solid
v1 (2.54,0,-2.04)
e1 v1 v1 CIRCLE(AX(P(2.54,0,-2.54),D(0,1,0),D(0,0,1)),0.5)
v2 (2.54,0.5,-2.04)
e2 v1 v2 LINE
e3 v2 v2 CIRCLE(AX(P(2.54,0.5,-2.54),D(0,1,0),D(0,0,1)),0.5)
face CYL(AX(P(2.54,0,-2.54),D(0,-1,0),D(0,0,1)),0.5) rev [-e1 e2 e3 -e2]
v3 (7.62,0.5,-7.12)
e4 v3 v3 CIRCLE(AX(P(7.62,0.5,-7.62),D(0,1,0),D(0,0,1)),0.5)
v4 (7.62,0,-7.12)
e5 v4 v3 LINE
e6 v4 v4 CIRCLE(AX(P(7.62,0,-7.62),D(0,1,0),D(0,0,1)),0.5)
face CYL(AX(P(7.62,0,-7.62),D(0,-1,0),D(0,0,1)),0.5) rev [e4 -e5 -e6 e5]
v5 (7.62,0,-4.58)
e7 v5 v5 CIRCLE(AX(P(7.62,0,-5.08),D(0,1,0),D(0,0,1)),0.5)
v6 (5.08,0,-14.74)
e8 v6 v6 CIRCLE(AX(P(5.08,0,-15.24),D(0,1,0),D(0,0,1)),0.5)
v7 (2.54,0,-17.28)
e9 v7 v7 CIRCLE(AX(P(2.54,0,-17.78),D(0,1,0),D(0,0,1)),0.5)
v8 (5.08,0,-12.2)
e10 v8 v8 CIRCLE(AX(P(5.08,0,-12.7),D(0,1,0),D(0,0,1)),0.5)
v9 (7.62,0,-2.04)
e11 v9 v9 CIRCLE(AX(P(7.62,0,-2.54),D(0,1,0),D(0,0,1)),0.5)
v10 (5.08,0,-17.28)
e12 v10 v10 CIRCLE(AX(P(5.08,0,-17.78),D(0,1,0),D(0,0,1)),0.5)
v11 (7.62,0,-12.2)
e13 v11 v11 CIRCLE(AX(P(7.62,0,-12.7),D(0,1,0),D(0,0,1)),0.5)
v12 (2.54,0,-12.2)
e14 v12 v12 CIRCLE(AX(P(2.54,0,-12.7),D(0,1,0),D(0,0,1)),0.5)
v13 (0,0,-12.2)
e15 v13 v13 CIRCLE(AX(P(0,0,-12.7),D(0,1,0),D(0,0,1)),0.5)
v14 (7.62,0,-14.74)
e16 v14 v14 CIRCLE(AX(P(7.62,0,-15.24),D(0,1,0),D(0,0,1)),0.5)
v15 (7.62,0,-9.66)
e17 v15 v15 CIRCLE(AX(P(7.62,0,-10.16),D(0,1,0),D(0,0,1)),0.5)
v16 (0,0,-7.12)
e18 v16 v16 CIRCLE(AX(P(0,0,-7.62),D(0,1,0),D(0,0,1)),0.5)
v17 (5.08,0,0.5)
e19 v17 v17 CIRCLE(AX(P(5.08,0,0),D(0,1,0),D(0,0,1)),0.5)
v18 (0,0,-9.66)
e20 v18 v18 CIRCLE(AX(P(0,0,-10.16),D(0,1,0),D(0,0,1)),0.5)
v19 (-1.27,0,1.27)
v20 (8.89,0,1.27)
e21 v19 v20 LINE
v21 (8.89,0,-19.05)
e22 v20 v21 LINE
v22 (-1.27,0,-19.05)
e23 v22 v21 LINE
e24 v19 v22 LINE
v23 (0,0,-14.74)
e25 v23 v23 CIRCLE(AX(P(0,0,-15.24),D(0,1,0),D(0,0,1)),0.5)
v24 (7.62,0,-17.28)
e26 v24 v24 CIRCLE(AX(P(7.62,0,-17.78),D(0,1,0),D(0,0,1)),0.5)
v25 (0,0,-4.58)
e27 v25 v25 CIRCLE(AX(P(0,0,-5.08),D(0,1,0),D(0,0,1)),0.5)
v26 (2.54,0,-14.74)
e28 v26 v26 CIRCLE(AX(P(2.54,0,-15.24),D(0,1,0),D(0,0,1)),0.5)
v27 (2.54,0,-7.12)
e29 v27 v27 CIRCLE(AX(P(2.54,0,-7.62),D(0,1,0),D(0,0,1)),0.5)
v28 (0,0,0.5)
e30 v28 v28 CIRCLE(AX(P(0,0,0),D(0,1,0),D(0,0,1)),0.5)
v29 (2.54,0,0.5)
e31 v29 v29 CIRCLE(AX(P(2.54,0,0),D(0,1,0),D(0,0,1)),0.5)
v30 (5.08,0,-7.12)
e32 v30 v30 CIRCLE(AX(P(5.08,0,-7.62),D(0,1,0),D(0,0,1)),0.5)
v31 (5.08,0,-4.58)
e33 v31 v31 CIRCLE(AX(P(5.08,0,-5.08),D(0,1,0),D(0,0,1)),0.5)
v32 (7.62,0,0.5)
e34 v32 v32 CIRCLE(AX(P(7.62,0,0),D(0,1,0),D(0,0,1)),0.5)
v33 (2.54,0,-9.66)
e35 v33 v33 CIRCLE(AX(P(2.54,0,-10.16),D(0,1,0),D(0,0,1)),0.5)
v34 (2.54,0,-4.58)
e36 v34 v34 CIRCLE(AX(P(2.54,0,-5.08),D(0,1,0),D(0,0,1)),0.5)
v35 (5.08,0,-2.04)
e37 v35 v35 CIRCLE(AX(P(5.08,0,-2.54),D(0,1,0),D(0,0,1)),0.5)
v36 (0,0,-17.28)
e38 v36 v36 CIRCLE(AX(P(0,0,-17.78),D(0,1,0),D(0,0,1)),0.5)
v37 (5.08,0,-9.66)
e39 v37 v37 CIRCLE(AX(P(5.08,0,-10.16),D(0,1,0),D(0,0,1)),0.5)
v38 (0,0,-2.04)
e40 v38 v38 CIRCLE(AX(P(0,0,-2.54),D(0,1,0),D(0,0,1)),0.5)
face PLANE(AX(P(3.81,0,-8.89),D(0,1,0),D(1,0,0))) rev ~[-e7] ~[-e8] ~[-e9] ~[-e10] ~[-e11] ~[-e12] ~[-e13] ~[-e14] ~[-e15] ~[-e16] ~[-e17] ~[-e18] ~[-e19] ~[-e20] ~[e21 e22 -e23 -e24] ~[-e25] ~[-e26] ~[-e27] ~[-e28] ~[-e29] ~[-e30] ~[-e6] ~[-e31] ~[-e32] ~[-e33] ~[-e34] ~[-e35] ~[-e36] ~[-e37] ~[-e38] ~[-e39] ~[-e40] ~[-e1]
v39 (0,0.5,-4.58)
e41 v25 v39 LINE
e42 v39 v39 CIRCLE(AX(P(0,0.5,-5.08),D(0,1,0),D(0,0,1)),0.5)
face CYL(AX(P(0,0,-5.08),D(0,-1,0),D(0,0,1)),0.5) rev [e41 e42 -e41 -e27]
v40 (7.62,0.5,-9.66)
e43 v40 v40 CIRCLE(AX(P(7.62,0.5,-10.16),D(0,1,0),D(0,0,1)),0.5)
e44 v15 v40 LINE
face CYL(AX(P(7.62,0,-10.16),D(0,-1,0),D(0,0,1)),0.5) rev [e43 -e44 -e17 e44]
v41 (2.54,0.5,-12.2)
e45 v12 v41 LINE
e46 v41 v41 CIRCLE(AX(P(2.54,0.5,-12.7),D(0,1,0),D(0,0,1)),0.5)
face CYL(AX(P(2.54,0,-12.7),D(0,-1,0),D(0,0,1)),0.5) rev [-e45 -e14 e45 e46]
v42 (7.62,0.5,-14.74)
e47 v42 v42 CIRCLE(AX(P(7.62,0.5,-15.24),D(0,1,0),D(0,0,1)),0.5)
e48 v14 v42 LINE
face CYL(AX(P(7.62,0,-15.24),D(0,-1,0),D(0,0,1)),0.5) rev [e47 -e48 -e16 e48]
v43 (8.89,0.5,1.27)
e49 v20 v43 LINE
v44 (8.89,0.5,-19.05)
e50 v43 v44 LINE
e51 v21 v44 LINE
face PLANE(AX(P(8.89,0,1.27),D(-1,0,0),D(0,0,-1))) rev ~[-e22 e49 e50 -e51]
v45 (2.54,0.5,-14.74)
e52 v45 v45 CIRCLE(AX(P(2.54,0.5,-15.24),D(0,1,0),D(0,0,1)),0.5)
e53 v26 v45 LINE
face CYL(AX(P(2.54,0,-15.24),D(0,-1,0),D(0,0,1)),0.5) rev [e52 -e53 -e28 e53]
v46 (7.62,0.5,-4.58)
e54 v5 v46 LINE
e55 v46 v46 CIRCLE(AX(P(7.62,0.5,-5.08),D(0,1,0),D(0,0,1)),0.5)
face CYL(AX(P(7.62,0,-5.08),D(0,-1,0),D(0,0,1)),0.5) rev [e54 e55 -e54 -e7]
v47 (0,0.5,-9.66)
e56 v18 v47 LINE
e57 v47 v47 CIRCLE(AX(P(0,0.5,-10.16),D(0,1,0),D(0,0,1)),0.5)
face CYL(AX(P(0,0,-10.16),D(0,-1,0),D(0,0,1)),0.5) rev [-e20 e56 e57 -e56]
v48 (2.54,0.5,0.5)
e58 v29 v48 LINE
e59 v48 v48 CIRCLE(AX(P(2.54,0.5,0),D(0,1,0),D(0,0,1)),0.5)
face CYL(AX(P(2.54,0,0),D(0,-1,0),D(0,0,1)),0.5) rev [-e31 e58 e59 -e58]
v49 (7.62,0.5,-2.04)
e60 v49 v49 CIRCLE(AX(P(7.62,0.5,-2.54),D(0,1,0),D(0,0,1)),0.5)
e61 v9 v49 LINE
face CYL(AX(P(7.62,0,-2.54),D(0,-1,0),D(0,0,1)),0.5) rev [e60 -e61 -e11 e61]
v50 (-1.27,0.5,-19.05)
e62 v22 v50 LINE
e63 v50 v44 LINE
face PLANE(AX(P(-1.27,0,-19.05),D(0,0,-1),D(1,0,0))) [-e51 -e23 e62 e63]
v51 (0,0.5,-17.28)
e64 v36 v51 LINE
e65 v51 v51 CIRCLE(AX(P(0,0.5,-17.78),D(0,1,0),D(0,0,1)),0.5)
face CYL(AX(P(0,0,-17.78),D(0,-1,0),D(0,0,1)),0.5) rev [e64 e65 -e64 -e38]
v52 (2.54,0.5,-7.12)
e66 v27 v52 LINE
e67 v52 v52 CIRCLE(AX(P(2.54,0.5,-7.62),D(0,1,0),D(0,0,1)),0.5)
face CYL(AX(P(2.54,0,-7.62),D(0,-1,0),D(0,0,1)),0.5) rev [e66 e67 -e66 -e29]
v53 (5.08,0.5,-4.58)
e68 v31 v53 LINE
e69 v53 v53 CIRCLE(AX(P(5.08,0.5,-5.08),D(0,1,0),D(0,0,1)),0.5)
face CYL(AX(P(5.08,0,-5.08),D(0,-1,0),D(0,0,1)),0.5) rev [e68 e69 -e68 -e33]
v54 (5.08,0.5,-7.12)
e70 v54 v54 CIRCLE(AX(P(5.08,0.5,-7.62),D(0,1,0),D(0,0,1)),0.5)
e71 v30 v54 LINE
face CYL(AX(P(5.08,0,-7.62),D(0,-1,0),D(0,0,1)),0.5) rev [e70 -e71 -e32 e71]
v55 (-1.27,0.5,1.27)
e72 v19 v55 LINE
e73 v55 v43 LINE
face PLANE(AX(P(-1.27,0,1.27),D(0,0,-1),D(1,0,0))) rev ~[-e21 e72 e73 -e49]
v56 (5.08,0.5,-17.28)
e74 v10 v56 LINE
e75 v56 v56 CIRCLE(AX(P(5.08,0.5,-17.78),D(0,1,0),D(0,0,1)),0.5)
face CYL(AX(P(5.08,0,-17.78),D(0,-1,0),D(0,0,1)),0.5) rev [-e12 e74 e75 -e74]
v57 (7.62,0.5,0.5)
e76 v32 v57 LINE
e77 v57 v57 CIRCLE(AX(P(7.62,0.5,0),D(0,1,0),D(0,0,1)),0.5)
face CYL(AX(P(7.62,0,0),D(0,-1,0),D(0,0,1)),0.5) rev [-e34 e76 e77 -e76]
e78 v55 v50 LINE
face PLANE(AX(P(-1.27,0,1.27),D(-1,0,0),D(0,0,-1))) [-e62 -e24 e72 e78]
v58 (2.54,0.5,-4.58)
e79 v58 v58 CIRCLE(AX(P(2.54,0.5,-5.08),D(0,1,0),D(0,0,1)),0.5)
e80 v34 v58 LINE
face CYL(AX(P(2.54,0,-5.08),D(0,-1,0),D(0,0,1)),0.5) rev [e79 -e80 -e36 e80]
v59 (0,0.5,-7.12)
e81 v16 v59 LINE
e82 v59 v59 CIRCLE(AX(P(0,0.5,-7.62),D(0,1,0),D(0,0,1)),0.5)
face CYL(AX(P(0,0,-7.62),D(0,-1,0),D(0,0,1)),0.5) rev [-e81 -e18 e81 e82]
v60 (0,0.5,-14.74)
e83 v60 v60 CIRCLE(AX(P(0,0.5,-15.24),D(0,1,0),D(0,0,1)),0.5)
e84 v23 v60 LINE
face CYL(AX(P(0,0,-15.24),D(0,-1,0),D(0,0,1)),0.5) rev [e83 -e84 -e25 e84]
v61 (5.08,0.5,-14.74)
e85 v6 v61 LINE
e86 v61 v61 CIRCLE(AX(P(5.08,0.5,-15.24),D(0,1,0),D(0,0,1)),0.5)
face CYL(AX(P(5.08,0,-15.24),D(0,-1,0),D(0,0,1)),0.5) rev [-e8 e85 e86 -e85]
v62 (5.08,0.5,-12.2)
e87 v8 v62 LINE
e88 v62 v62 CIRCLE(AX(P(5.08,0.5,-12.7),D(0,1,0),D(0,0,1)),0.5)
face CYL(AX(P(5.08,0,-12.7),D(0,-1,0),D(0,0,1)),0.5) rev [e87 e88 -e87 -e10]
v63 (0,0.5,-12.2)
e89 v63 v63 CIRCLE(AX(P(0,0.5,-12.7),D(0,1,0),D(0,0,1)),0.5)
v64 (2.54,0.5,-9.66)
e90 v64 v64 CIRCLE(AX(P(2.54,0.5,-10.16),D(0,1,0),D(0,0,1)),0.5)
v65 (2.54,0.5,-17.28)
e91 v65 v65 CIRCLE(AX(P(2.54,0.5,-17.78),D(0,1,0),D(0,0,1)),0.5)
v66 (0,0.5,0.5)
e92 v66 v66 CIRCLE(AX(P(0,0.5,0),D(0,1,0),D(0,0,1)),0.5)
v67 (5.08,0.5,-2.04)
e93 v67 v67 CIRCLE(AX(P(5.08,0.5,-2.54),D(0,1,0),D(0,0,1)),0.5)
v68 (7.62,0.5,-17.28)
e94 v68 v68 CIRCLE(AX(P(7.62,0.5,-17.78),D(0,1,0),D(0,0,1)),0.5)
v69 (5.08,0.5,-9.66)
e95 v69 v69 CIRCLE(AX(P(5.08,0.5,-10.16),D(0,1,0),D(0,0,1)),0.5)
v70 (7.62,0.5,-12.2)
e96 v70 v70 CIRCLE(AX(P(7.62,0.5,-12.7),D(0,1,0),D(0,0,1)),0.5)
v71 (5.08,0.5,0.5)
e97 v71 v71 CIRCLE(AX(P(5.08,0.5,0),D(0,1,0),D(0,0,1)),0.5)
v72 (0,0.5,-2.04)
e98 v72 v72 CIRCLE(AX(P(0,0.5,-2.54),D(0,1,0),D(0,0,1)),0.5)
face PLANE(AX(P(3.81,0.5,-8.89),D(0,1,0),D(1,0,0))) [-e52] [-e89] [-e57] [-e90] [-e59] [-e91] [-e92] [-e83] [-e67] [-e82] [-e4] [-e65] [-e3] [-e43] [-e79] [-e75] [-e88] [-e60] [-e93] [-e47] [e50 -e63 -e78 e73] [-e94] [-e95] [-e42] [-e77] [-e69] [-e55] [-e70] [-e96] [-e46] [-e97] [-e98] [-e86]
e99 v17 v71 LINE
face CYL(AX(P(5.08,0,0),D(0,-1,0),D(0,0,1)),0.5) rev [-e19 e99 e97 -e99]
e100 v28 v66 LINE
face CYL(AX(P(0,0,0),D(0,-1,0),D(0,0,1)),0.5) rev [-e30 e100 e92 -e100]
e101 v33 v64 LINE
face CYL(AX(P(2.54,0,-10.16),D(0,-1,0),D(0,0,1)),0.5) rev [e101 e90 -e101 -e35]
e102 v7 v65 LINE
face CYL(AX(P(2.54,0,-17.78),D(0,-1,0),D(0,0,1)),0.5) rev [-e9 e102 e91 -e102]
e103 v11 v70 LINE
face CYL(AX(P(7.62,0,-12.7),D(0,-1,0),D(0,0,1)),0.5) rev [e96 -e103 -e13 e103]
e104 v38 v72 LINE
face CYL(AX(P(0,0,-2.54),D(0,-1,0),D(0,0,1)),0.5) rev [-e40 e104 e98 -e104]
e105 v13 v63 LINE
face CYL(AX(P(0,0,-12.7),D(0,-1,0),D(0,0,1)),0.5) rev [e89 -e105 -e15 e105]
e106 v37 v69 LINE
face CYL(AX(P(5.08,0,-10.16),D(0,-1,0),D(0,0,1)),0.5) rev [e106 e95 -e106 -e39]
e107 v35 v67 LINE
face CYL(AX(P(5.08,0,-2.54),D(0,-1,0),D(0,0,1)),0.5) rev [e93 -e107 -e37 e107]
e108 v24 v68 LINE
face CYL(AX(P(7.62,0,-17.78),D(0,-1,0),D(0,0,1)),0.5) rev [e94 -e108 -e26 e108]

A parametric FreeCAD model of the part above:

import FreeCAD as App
import Part
import Sketcher

V = App.Vector

doc = App.newDocument("Part")
body = doc.addObject("PartDesign::Body", "Body")

sketch1 = doc.addObject("Sketcher::SketchObject", "Sketch")
body.addObject(sketch1)
sketch1.AttachmentSupport = (doc.XZ_Plane, [""])
sketch1.MapMode = "FlatFace"
sketch1.addGeometry([
    Part.LineSegment(V(-1.3, -19.1, 0), V(-1.3, 1.3, 0)),
    Part.LineSegment(V(-1.3, 1.3, 0), V(8.9, 1.3, 0)),
    Part.LineSegment(V(8.9, 1.3, 0), V(8.9, -19.1, 0)),
    Part.LineSegment(V(8.9, -19.1, 0), V(-1.3, -19.1, 0)),
    Part.Circle(V(0, 0, 0), V(0, 0, 1), 0.5),
    Part.Circle(V(0, -2.5, 0), V(0, 0, 1), 0.5),
    Part.Circle(V(2.5, 0, 0), V(0, 0, 1), 0.5),
    Part.Circle(V(2.5, -2.5, 0), V(0, 0, 1), 0.5),
    Part.Circle(V(0, -5.1, 0), V(0, 0, 1), 0.5),
    Part.Circle(V(0, -7.6, 0), V(0, 0, 1), 0.5),
    Part.Circle(V(2.5, -5.1, 0), V(0, 0, 1), 0.5),
    Part.Circle(V(2.5, -7.6, 0), V(0, 0, 1), 0.5),
    Part.Circle(V(5.1, 0, 0), V(0, 0, 1), 0.5),
    Part.Circle(V(5.1, -2.5, 0), V(0, 0, 1), 0.5),
    Part.Circle(V(7.6, 0, 0), V(0, 0, 1), 0.5),
    Part.Circle(V(7.6, -2.5, 0), V(0, 0, 1), 0.5),
    Part.Circle(V(5.1, -5.1, 0), V(0, 0, 1), 0.5),
    Part.Circle(V(5.1, -7.6, 0), V(0, 0, 1), 0.5),
    Part.Circle(V(7.6, -5.1, 0), V(0, 0, 1), 0.5),
    Part.Circle(V(7.6, -7.6, 0), V(0, 0, 1), 0.5),
    Part.Circle(V(0, -10.2, 0), V(0, 0, 1), 0.5),
    Part.Circle(V(0, -12.7, 0), V(0, 0, 1), 0.5),
    Part.Circle(V(2.5, -10.2, 0), V(0, 0, 1), 0.5),
    Part.Circle(V(2.5, -12.7, 0), V(0, 0, 1), 0.5),
    Part.Circle(V(0, -15.2, 0), V(0, 0, 1), 0.5),
    Part.Circle(V(0, -17.8, 0), V(0, 0, 1), 0.5),
    Part.Circle(V(2.5, -15.2, 0), V(0, 0, 1), 0.5),
    Part.Circle(V(2.5, -17.8, 0), V(0, 0, 1), 0.5),
    Part.Circle(V(5.1, -10.2, 0), V(0, 0, 1), 0.5),
    Part.Circle(V(5.1, -12.7, 0), V(0, 0, 1), 0.5),
    Part.Circle(V(7.6, -10.2, 0), V(0, 0, 1), 0.5),
    Part.Circle(V(7.6, -12.7, 0), V(0, 0, 1), 0.5),
    Part.Circle(V(5.1, -15.2, 0), V(0, 0, 1), 0.5),
    Part.Circle(V(5.1, -17.8, 0), V(0, 0, 1), 0.5),
    Part.Circle(V(7.6, -15.2, 0), V(0, 0, 1), 0.5),
    Part.Circle(V(7.6, -17.8, 0), V(0, 0, 1), 0.5),
], False)
sketch1.addConstraint([
    Sketcher.Constraint("Coincident", 0, 2, 1, 1),
    Sketcher.Constraint("Coincident", 1, 2, 2, 1),
    Sketcher.Constraint("Coincident", 2, 2, 3, 1),
    Sketcher.Constraint("Coincident", 3, 2, 0, 1),
    Sketcher.Constraint("Vertical", 0),
    Sketcher.Constraint("Horizontal", 1),
    Sketcher.Constraint("Vertical", 2),
    Sketcher.Constraint("Horizontal", 3),
    Sketcher.Constraint("Coincident", 4, 3, -1, 1),
    Sketcher.Constraint("Equal", 4, 5),
    Sketcher.Constraint("Equal", 5, 6),
    Sketcher.Constraint("Equal", 6, 7),
    Sketcher.Constraint("Equal", 7, 8),
    Sketcher.Constraint("Equal", 8, 9),
    Sketcher.Constraint("Equal", 9, 10),
    Sketcher.Constraint("Equal", 10, 11),
    Sketcher.Constraint("Equal", 11, 12),
    Sketcher.Constraint("Equal", 12, 13),
    Sketcher.Constraint("Equal", 13, 14),
    Sketcher.Constraint("Equal", 14, 15),
    Sketcher.Constraint("Equal", 15, 16),
    Sketcher.Constraint("Equal", 16, 17),
    Sketcher.Constraint("Equal", 17, 18),
    Sketcher.Constraint("Equal", 18, 19),
    Sketcher.Constraint("Equal", 19, 20),
    Sketcher.Constraint("Equal", 20, 21),
    Sketcher.Constraint("Equal", 21, 22),
    Sketcher.Constraint("Equal", 22, 23),
    Sketcher.Constraint("Equal", 23, 24),
    Sketcher.Constraint("Equal", 24, 25),
    Sketcher.Constraint("Equal", 25, 26),
    Sketcher.Constraint("Equal", 26, 27),
    Sketcher.Constraint("Equal", 27, 28),
    Sketcher.Constraint("Equal", 28, 29),
    Sketcher.Constraint("Equal", 29, 30),
    Sketcher.Constraint("Equal", 30, 31),
    Sketcher.Constraint("Equal", 31, 32),
    Sketcher.Constraint("Equal", 32, 33),
    Sketcher.Constraint("Equal", 33, 34),
    Sketcher.Constraint("Equal", 34, 35),
    Sketcher.Constraint("PointOnObject", 5, 3, -2),
    Sketcher.Constraint("PointOnObject", 6, 3, -1),
    Sketcher.Constraint("PointOnObject", 8, 3, -2),
    Sketcher.Constraint("PointOnObject", 9, 3, -2),
    Sketcher.Constraint("PointOnObject", 12, 3, -1),
    Sketcher.Constraint("PointOnObject", 14, 3, -1),
    Sketcher.Constraint("PointOnObject", 20, 3, -2),
    Sketcher.Constraint("PointOnObject", 21, 3, -2),
    Sketcher.Constraint("PointOnObject", 24, 3, -2),
    Sketcher.Constraint("PointOnObject", 25, 3, -2),
    Sketcher.Constraint("Horizontal", 5, 3, 7, 3),
    Sketcher.Constraint("Horizontal", 8, 3, 10, 3),
    Sketcher.Constraint("Horizontal", 9, 3, 11, 3),
    Sketcher.Constraint("Horizontal", 7, 3, 13, 3),
    Sketcher.Constraint("Horizontal", 13, 3, 15, 3),
    Sketcher.Constraint("Horizontal", 10, 3, 16, 3),
    Sketcher.Constraint("Horizontal", 11, 3, 17, 3),
    Sketcher.Constraint("Horizontal", 16, 3, 18, 3),
    Sketcher.Constraint("Horizontal", 17, 3, 19, 3),
    Sketcher.Constraint("Horizontal", 20, 3, 22, 3),
    Sketcher.Constraint("Horizontal", 21, 3, 23, 3),
    Sketcher.Constraint("Horizontal", 24, 3, 26, 3),
    Sketcher.Constraint("Horizontal", 25, 3, 27, 3),
    Sketcher.Constraint("Horizontal", 22, 3, 28, 3),
    Sketcher.Constraint("Horizontal", 23, 3, 29, 3),
    Sketcher.Constraint("Horizontal", 28, 3, 30, 3),
    Sketcher.Constraint("Horizontal", 29, 3, 31, 3),
    Sketcher.Constraint("Horizontal", 26, 3, 32, 3),
    Sketcher.Constraint("Horizontal", 27, 3, 33, 3),
    Sketcher.Constraint("Horizontal", 32, 3, 34, 3),
    Sketcher.Constraint("Horizontal", 33, 3, 35, 3),
    Sketcher.Constraint("Vertical", 6, 3, 7, 3),
    Sketcher.Constraint("Vertical", 7, 3, 10, 3),
    Sketcher.Constraint("Vertical", 10, 3, 11, 3),
    Sketcher.Constraint("Vertical", 12, 3, 13, 3),
    Sketcher.Constraint("Vertical", 14, 3, 15, 3),
    Sketcher.Constraint("Vertical", 13, 3, 16, 3),
    Sketcher.Constraint("Vertical", 16, 3, 17, 3),
    Sketcher.Constraint("Vertical", 15, 3, 18, 3),
    Sketcher.Constraint("Vertical", 18, 3, 19, 3),
    Sketcher.Constraint("Vertical", 11, 3, 22, 3),
    Sketcher.Constraint("Vertical", 22, 3, 23, 3),
    Sketcher.Constraint("Vertical", 23, 3, 26, 3),
    Sketcher.Constraint("Vertical", 26, 3, 27, 3),
    Sketcher.Constraint("Vertical", 17, 3, 28, 3),
    Sketcher.Constraint("Vertical", 28, 3, 29, 3),
    Sketcher.Constraint("Vertical", 19, 3, 30, 3),
    Sketcher.Constraint("Vertical", 30, 3, 31, 3),
    Sketcher.Constraint("Vertical", 29, 3, 32, 3),
    Sketcher.Constraint("Vertical", 32, 3, 33, 3),
    Sketcher.Constraint("Vertical", 31, 3, 34, 3),
    Sketcher.Constraint("Vertical", 34, 3, 35, 3),
    Sketcher.Constraint("Diameter", 4, 1.0),
    Sketcher.Constraint("DistanceX", 1, 1, 1, 2, 10.16),
    Sketcher.Constraint("DistanceY", 0, 1, 0, 2, 20.32),
    Sketcher.Constraint("DistanceY", 21, 3, -1, 1, 12.7),
    Sketcher.Constraint("DistanceY", 5, 3, -1, 1, 2.54),
    Sketcher.Constraint("DistanceX", -1, 1, 6, 3, 2.54),
    Sketcher.Constraint("DistanceY", 8, 3, -1, 1, 5.08),
    Sketcher.Constraint("DistanceY", 9, 3, -1, 1, 7.62),
    Sketcher.Constraint("DistanceX", -1, 1, 12, 3, 5.08),
    Sketcher.Constraint("DistanceX", -1, 1, 14, 3, 7.62),
    Sketcher.Constraint("DistanceY", 20, 3, -1, 1, 10.16),
    Sketcher.Constraint("DistanceY", 24, 3, -1, 1, 15.24),
    Sketcher.Constraint("DistanceY", 25, 3, -1, 1, 17.78),
    Sketcher.Constraint("DistanceX", 0, 2, -1, 1, 1.27),
    Sketcher.Constraint("DistanceY", -1, 1, 0, 2, 1.27),
])
pad1 = doc.addObject("PartDesign::Pad", "Pad")
body.addObject(pad1)
pad1.Profile = sketch1
pad1.Length = 0.5
pad1.Reversed = True

doc.recompute()
